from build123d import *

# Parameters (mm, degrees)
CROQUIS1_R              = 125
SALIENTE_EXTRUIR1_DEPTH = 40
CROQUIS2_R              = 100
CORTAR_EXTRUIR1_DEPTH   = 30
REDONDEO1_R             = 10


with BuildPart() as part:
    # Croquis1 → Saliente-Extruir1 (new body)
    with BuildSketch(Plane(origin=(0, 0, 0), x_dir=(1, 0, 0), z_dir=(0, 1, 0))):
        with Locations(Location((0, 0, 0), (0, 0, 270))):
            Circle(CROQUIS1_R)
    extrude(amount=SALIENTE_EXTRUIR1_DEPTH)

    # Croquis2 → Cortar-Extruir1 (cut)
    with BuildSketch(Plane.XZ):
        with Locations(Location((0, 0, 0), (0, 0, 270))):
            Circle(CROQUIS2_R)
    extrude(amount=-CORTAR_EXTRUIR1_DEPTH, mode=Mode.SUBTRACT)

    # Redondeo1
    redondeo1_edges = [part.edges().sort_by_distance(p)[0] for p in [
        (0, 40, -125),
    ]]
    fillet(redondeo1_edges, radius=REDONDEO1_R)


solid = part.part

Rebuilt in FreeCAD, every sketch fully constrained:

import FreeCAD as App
import Part
import Sketcher


def edges_at(feature, points):
    """Names of the edges that pass closest to the given points."""
    edges = feature.Shape.Edges
    near = lambda p: min(range(len(edges)), key=lambda i: edges[i].distToShape(Part.Vertex(*p))[0])
    return sorted({f"Edge{near(p) + 1}" for p in points})

doc = App.newDocument("Part")
body = doc.addObject("PartDesign::Body", "Body")

# Sketch on XZ plane
sketch1 = body.newObject("Sketcher::SketchObject", "Sketch")
sketch1.AttachmentSupport = (doc.getObject("XZ_Plane"), [""])
sketch1.MapMode = "FlatFace"
sketch1.addGeometry(Part.Circle(App.Vector(0, 0, 0), App.Vector(0, 0, 1), 125), False)
sketch1.addConstraint(Sketcher.Constraint("Coincident", 0, 3, -1, 1))
sketch1.addConstraint(Sketcher.Constraint("Diameter", 0, 250.0))
pad1 = body.newObject("PartDesign::Pad", "Pad")
pad1.Profile = sketch1
pad1.Length = 40
pad1.Reversed = True

# Sketch on XZ plane
sketch2 = body.newObject("Sketcher::SketchObject", "Sketch001")
sketch2.AttachmentSupport = (doc.getObject("XZ_Plane"), [""])
sketch2.MapMode = "FlatFace"
sketch2.addGeometry(Part.Circle(App.Vector(0, 0, 0), App.Vector(0, 0, 1), 100), False)
sketch2.addConstraint(Sketcher.Constraint("Coincident", 0, 3, -1, 1))
sketch2.addConstraint(Sketcher.Constraint("Diameter", 0, 200.0))
pocket1 = body.newObject("PartDesign::Pocket", "Pocket")
pocket1.Profile = sketch2
pocket1.Length = 30
doc.recompute()

fillet = body.newObject("PartDesign::Fillet", "Fillet")
fillet.Base = (pocket1, edges_at(pocket1, [(0, 40, -125)]))
fillet.Radius = 10

doc.recompute()
